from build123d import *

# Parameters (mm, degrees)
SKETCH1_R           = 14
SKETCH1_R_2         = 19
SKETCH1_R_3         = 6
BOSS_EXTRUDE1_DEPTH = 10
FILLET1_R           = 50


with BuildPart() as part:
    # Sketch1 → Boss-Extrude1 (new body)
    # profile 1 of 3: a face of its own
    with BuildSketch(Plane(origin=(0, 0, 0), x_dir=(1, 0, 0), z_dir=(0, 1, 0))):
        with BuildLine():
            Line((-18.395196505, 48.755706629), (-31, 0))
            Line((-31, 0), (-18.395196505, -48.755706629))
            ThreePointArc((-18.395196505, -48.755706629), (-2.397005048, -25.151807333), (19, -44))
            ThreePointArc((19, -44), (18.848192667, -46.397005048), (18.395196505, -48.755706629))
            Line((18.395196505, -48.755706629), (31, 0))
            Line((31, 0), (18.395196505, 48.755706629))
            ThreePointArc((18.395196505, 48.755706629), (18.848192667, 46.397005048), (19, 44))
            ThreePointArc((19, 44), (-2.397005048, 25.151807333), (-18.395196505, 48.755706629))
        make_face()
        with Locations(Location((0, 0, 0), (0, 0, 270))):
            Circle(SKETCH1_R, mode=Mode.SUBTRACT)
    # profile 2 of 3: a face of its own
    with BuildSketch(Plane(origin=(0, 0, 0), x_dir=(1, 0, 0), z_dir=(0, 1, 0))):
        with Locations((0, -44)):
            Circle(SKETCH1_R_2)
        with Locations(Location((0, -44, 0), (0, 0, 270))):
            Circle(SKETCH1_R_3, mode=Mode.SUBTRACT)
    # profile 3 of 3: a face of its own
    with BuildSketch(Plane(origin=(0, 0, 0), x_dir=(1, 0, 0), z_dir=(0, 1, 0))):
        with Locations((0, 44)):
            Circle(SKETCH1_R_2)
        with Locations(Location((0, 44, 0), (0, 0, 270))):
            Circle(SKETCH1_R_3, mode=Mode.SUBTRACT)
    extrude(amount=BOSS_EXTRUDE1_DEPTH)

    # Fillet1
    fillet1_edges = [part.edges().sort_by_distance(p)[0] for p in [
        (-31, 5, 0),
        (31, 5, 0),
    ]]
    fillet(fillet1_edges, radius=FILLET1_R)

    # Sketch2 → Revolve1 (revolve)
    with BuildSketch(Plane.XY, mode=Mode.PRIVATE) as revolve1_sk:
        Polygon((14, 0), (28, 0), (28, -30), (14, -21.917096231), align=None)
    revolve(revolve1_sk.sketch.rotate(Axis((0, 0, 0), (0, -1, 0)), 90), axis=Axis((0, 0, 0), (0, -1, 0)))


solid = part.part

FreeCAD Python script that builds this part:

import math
import FreeCAD as App
import Part
import Sketcher
Q = App.Units.Quantity


def edges_at(feature, points):
    """Names of the edges that pass closest to the given points."""
    edges = feature.Shape.Edges
    near = lambda p: min(range(len(edges)), key=lambda i: edges[i].distToShape(Part.Vertex(*p))[0])
    return sorted({f"Edge{near(p) + 1}" for p in points})

doc = App.newDocument("Part")
body = doc.addObject("PartDesign::Body", "Body")

# Sketch on XZ plane
sketch1 = body.newObject("Sketcher::SketchObject", "Sketch")
sketch1.AttachmentSupport = (doc.getObject("XZ_Plane"), [""])
sketch1.MapMode = "FlatFace"
sketch1.addGeometry([
    Part.LineSegment(App.Vector(-18, -49, 0), App.Vector(-31, 0, 0)),  # 0
    Part.LineSegment(App.Vector(-31, 0, 0), App.Vector(-18, 49, 0)),  # 1
    Part.ArcOfCircle(Part.Circle(App.Vector(0, 44, 0), App.Vector(0, 0, 1), 19), math.radians(14), math.radians(166)),  # 2
    Part.LineSegment(App.Vector(18, 49, 0), App.Vector(31, 0, 0)),  # 3
    Part.LineSegment(App.Vector(31, 0, 0), App.Vector(18, -49, 0)),  # 4
    Part.ArcOfCircle(Part.Circle(App.Vector(0, -44, 0), App.Vector(0, 0, 1), 19), math.radians(-166), math.radians(-14)),  # 5
    Part.Circle(App.Vector(0, 0, 0), App.Vector(0, 0, 1), 14),  # 6
    Part.Circle(App.Vector(0, -44, 0), App.Vector(0, 0, 1), 6),  # 7
    Part.Circle(App.Vector(0, 44, 0), App.Vector(0, 0, 1), 6),  # 8
], False)
sketch1.addConstraint([
    Sketcher.Constraint("Coincident", 0, 2, 1, 1),
    Sketcher.Constraint("Tangent", 1, 2, 2, 2),
    Sketcher.Constraint("Tangent", 2, 1, 3, 1),
    Sketcher.Constraint("Coincident", 3, 2, 4, 1),
    Sketcher.Constraint("Tangent", 4, 2, 5, 2),
    Sketcher.Constraint("Tangent", 5, 1, 0, 1),
    Sketcher.Constraint("Coincident", 6, 3, -1, 1),
    Sketcher.Constraint("Coincident", 7, 3, 5, 3),
    Sketcher.Constraint("Coincident", 8, 3, 2, 3),
    Sketcher.Constraint("Equal", 2, 5),
    Sketcher.Constraint("Equal", 7, 8),
    Sketcher.Constraint("Symmetric", 2, 3, 5, 3, -1, 1),
    Sketcher.Constraint("Symmetric", 0, 2, 3, 2, -1, 1),
    Sketcher.Constraint("Symmetric", 1, 2, 2, 1, -2),
    Sketcher.Constraint("Diameter", 6, 28.0),
    Sketcher.Constraint("Diameter", 7, 12.0),
    Sketcher.Constraint("Radius", 2, 19.0),
    Sketcher.Constraint("DistanceY", -1, 1, 2, 3, 44.0),
    Sketcher.Constraint("DistanceX", 0, 2, -1, 1, 31.0),
])
pad1 = body.newObject("PartDesign::Pad", "Pad")
pad1.Profile = sketch1
pad1.Length = 10
pad1.Reversed = True
doc.recompute()

fillet = body.newObject("PartDesign::Fillet", "Fillet")
fillet.Base = (pad1, edges_at(pad1, [(-31, 5, 0), (31, 5, 0)]))
fillet.Radius = 50

# Sketch on XY plane
sketch2 = body.newObject("Sketcher::SketchObject", "Sketch001")
sketch2.AttachmentSupport = (doc.getObject("XY_Plane"), [""])
sketch2.MapMode = "FlatFace"
sketch2.addGeometry([
    Part.LineSegment(App.Vector(28, 0, 0), App.Vector(14, 0, 0)),
    Part.LineSegment(App.Vector(14, 0, 0), App.Vector(14, -22, 0)),
    Part.LineSegment(App.Vector(14, -22, 0), App.Vector(28, -30, 0)),
    Part.LineSegment(App.Vector(28, -30, 0), App.Vector(28, 0, 0)),
], False)
sketch2.addConstraint([
    Sketcher.Constraint("Coincident", 0, 2, 1, 1),
    Sketcher.Constraint("Coincident", 1, 2, 2, 1),
    Sketcher.Constraint("Coincident", 2, 2, 3, 1),
    Sketcher.Constraint("Coincident", 3, 2, 0, 1),
    Sketcher.Constraint("Horizontal", 0),
    Sketcher.Constraint("Vertical", 1),
    Sketcher.Constraint("Vertical", 3),
    Sketcher.Constraint("PointOnObject", 0, 2, -1),
    Sketcher.Constraint("DistanceX", 0, 2, 0, 1, 14.0),
    Sketcher.Constraint("DistanceY", 3, 1, 3, 2, 30.0),
    Sketcher.Constraint("Angle", 2, Q("-30 deg")),
    Sketcher.Constraint("DistanceX", -1, 1, 0, 2, 14.0),
])
revolution = body.newObject("PartDesign::Revolution", "Revolution")
revolution.Profile = sketch2
revolution.ReferenceAxis = (sketch2, ["V_Axis"])
revolution.Angle = 360

doc.recompute()
